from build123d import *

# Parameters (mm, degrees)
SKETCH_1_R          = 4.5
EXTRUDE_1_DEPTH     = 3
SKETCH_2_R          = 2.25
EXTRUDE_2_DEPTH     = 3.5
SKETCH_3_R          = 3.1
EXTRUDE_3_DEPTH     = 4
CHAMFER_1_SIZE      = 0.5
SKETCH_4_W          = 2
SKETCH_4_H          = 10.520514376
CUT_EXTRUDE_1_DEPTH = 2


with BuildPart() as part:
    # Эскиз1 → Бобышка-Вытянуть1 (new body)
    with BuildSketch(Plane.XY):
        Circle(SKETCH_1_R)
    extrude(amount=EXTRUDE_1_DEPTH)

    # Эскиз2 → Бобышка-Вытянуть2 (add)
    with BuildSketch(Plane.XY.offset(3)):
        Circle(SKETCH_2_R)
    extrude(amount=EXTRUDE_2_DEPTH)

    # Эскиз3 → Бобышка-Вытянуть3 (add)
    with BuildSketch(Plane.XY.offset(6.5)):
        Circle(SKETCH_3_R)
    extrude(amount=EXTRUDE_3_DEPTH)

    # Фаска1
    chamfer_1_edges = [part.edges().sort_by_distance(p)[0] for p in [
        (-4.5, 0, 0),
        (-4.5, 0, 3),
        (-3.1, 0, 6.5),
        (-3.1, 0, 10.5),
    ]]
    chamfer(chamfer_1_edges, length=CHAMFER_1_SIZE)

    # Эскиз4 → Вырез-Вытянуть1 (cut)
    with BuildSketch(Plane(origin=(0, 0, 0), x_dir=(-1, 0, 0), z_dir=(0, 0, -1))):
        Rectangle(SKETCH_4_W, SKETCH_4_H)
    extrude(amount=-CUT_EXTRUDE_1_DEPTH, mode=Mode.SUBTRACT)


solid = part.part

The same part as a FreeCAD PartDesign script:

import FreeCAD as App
import Part
import Sketcher

V = App.Vector
Q = App.Units.Quantity


def edges_at(feature, points):
    """Names of the edges that pass closest to the given points."""
    edges = feature.Shape.Edges
    near = lambda p: min(range(len(edges)), key=lambda i: edges[i].distToShape(Part.Vertex(*p))[0])
    return sorted({f"Edge{near(p) + 1}" for p in points})

doc = App.newDocument("Part")
params = doc.addObject("Spreadsheet::Sheet", "Params")
for row, (alias, value) in enumerate([
    ("sketch1_diameter", "9 mm"),
    ("pad1_length", "3 mm"),
    ("sketch2_diameter", "4.5 mm"),
    ("pad2_length", "3.5 mm"),
    ("sketch3_diameter", "6.2 mm"),
    ("pad3_length", "4 mm"),
    ("chamfer_size", "0.5 mm"),
    ("sketch4_width", "2 mm"),
    ("pocket1_length", "2 mm"),
], start=1):
    params.set(f"A{row}", alias)
    params.set(f"B{row}", "=" + value)
    params.setAlias(f"B{row}", alias)

body = doc.addObject("PartDesign::Body", "Body")

sketch1 = doc.addObject("Sketcher::SketchObject", "Sketch")
body.addObject(sketch1)
sketch1.AttachmentSupport = (doc.XY_Plane, [""])
sketch1.MapMode = "FlatFace"
sketch1.addGeometry(Part.Circle(V(0, 0, 0), V(0, 0, 1), 4.5), False)
sketch1.addConstraint([
    Sketcher.Constraint("Coincident", 0, 3, -1, 1),
    Sketcher.Constraint("Diameter", 0, Q("9 mm")),
])
sketch1.setExpression("Constraints[1]", "Params.sketch1_diameter")
pad1 = doc.addObject("PartDesign::Pad", "Pad")
body.addObject(pad1)
pad1.Profile = sketch1
pad1.setExpression("Length", "Params.pad1_length")

sketch2 = doc.addObject("Sketcher::SketchObject", "Sketch001")
body.addObject(sketch2)
sketch2.AttachmentSupport = (doc.XY_Plane, [""])
sketch2.MapMode = "FlatFace"
sketch2.AttachmentOffset = App.Placement(V(0, 0, 3), App.Rotation())
sketch2.addGeometry(Part.Circle(V(0, 0, 0), V(0, 0, 1), 2.2), False)
sketch2.addConstraint([
    Sketcher.Constraint("Coincident", 0, 3, -1, 1),
    Sketcher.Constraint("Diameter", 0, Q("4.5 mm")),
])
sketch2.setExpression("Constraints[1]", "Params.sketch2_diameter")
pad2 = doc.addObject("PartDesign::Pad", "Pad001")
body.addObject(pad2)
pad2.Profile = sketch2
pad2.setExpression("Length", "Params.pad2_length")

sketch3 = doc.addObject("Sketcher::SketchObject", "Sketch002")
body.addObject(sketch3)
sketch3.AttachmentSupport = (doc.XY_Plane, [""])
sketch3.MapMode = "FlatFace"
sketch3.AttachmentOffset = App.Placement(V(0, 0, 6.5), App.Rotation())
sketch3.addGeometry(Part.Circle(V(0, 0, 0), V(0, 0, 1), 3.1), False)
sketch3.addConstraint([
    Sketcher.Constraint("Coincident", 0, 3, -1, 1),
    Sketcher.Constraint("Diameter", 0, Q("6.2 mm")),
])
sketch3.setExpression("Constraints[1]", "Params.sketch3_diameter")
pad3 = doc.addObject("PartDesign::Pad", "Pad002")
body.addObject(pad3)
pad3.Profile = sketch3
pad3.setExpression("Length", "Params.pad3_length")
doc.recompute()

chamfer = doc.addObject("PartDesign::Chamfer", "Chamfer")
body.addObject(chamfer)
chamfer.Base = (pad3, edges_at(pad3, [
    (-4.5, 0, 0),
    (-4.5, 0, 3),
    (-3.1, 0, 6.5),
    (-3.1, 0, 10.5),
]))
chamfer.setExpression("Size", "Params.chamfer_size")

sketch4 = doc.addObject("Sketcher::SketchObject", "Sketch003")
body.addObject(sketch4)
sketch4.AttachmentSupport = (doc.XY_Plane, [""])
sketch4.MapMode = "FlatFace"
sketch4.addGeometry([
    Part.LineSegment(V(1, 5.3, 0), V(1, -5.3, 0)),
    Part.LineSegment(V(1, -5.3, 0), V(-1, -5.3, 0)),
    Part.LineSegment(V(-1, -5.3, 0), V(-1, 5.3, 0)),
    Part.LineSegment(V(-1, 5.3, 0), V(1, 5.3, 0)),
], False)
sketch4.addConstraint([
    Sketcher.Constraint("Coincident", 0, 2, 1, 1),
    Sketcher.Constraint("Coincident", 1, 2, 2, 1),
    Sketcher.Constraint("Coincident", 2, 2, 3, 1),
    Sketcher.Constraint("Coincident", 3, 2, 0, 1),
    Sketcher.Constraint("Vertical", 0),
    Sketcher.Constraint("Horizontal", 1),
    Sketcher.Constraint("Vertical", 2),
    Sketcher.Constraint("Horizontal", 3),
    Sketcher.Constraint("Symmetric", 0, 2, 2, 2, -1, 1),
    Sketcher.Constraint("DistanceX", 1, 2, 1, 1, Q("2 mm")),
    Sketcher.Constraint("DistanceY", 0, 2, 0, 1, Q("10.520514 mm")),
])
sketch4.setExpression("Constraints[9]", "Params.sketch4_width")
pocket1 = doc.addObject("PartDesign::Pocket", "Pocket")
body.addObject(pocket1)
pocket1.Profile = sketch4
pocket1.setExpression("Length", "Params.pocket1_length")
pocket1.Reversed = True

doc.recompute()
